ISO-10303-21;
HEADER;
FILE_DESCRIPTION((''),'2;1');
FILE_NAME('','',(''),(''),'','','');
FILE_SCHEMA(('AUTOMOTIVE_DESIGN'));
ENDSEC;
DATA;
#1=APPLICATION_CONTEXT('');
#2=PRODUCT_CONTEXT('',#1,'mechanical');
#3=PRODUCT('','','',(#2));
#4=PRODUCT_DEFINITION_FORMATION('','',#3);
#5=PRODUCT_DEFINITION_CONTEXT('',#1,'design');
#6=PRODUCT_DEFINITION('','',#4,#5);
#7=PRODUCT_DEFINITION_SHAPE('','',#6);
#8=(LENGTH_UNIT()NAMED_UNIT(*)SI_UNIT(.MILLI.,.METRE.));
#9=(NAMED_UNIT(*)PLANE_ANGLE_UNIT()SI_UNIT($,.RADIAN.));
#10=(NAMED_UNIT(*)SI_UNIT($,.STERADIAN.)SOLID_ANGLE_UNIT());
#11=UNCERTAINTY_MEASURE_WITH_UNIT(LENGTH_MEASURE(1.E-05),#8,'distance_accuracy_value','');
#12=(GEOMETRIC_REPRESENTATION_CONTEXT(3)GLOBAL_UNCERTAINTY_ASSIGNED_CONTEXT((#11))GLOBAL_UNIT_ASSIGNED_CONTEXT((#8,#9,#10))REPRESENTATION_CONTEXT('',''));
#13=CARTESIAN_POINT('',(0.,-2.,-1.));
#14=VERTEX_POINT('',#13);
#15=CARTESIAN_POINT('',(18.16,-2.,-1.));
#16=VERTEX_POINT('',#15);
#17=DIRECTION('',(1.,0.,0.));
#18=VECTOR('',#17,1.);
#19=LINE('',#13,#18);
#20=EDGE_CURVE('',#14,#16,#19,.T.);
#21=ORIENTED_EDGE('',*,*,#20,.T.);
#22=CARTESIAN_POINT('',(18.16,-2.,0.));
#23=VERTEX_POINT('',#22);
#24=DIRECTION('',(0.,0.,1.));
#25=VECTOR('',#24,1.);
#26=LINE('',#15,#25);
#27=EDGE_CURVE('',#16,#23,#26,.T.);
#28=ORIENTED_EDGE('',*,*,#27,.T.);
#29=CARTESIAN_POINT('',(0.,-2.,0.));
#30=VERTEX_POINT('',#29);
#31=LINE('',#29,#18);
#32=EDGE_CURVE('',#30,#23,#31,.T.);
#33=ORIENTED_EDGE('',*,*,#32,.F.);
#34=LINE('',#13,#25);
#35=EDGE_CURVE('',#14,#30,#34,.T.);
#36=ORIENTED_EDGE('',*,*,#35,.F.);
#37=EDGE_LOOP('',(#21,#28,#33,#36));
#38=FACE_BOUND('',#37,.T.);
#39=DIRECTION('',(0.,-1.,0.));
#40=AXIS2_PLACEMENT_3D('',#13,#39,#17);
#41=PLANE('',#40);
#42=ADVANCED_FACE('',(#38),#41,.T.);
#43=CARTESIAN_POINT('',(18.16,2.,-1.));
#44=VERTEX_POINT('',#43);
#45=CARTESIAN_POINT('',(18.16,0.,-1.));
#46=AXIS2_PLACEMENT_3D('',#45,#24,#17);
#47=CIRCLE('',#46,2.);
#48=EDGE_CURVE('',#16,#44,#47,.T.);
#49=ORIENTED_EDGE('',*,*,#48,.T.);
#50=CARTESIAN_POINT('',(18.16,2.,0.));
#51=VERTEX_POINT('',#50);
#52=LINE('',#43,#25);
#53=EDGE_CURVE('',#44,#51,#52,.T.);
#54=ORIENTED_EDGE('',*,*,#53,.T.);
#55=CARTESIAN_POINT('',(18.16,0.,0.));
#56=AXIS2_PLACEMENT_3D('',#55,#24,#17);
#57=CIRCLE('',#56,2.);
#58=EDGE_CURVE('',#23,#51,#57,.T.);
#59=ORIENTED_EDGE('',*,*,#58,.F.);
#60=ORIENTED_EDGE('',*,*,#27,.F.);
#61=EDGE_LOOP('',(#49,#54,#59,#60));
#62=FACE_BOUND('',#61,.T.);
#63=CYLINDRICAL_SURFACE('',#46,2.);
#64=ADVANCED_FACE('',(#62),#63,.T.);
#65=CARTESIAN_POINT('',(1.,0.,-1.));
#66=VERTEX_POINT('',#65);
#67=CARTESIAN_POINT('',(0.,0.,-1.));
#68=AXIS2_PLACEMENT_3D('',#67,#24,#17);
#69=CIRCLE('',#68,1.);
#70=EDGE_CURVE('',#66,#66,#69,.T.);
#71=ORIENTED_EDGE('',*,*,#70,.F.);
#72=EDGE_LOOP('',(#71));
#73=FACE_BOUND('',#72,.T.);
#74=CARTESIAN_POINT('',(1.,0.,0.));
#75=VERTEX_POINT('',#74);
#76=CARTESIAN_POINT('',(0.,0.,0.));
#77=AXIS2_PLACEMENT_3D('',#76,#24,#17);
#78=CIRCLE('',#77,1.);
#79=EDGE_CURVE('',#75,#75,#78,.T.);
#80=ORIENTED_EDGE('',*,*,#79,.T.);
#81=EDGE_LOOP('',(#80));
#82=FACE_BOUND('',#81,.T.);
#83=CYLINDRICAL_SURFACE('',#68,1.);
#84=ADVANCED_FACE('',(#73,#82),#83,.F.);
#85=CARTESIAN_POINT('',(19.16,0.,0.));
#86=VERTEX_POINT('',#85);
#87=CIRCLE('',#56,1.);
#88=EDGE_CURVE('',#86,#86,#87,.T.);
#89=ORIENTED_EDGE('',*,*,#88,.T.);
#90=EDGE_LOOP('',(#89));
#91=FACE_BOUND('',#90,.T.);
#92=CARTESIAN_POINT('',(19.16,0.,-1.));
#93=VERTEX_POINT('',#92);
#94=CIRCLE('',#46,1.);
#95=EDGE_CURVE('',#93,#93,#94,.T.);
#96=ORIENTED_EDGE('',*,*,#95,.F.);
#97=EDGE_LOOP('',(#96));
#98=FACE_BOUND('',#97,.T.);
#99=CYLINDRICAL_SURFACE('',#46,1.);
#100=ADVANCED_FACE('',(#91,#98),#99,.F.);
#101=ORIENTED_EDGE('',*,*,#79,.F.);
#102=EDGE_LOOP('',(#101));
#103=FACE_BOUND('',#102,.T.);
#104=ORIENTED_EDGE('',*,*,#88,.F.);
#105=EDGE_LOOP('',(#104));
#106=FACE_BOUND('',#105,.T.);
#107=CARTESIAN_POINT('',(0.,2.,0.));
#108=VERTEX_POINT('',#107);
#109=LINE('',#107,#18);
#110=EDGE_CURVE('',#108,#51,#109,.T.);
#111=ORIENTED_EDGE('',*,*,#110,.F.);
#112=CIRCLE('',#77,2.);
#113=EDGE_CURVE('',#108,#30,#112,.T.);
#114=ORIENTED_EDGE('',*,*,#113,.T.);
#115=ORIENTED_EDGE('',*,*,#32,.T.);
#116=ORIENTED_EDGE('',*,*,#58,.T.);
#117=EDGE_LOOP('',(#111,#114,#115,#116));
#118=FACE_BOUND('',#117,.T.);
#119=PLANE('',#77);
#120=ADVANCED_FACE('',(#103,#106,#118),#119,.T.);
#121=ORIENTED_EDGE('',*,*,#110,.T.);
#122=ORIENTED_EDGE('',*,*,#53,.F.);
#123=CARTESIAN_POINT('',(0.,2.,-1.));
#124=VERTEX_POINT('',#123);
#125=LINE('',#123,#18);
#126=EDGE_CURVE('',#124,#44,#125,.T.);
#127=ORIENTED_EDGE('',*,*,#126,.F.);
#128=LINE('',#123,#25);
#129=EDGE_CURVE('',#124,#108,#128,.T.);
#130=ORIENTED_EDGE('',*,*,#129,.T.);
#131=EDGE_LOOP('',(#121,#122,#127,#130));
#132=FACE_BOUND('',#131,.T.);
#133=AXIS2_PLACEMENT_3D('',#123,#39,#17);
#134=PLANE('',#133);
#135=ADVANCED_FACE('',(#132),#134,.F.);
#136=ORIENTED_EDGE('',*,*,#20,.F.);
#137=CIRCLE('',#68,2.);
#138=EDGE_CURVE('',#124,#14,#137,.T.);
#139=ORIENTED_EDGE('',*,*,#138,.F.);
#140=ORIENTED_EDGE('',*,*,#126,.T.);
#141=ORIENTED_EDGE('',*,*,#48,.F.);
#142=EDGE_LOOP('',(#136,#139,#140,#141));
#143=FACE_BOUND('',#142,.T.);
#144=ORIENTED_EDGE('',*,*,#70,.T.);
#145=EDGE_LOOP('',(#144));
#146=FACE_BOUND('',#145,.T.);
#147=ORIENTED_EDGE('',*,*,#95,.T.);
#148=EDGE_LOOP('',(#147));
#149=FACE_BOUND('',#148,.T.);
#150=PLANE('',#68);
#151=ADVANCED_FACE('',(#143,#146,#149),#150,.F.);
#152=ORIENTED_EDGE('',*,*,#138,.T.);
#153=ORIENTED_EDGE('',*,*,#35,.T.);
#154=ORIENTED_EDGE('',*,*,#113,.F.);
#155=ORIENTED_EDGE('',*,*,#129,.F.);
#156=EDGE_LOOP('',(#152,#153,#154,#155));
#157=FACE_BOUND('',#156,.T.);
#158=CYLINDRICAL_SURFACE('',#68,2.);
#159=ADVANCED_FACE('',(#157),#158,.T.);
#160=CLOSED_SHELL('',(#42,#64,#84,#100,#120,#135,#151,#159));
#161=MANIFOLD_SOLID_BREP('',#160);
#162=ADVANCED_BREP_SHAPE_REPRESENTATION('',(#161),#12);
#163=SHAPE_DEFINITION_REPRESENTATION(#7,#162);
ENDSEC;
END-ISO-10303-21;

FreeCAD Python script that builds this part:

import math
import FreeCAD as App
import Part
import Sketcher
from FreeCAD import Vector

doc = App.newDocument("Part")
params = doc.addObject("Spreadsheet::Sheet", "Params")
for row, (alias, value) in enumerate([
    ("sketch1_diameter", "2 mm"),
    ("sketch1_radius", "2 mm"),
    ("sketch1_width", "18.16 mm"),
    ("pad1_length", "1 mm"),
], start=1):
    params.set(f"A{row}", alias)
    params.set(f"B{row}", "=" + value)
    params.setAlias(f"B{row}", alias)

body = doc.addObject("PartDesign::Body", "Body")

# Sketch on XY plane
sketch1 = body.newObject("Sketcher::SketchObject", "Sketch")
sketch1.AttachmentSupport = (doc.getObject("XY_Plane"), [""])
sketch1.MapMode = "FlatFace"
sketch1.addGeometry([
    Part.ArcOfCircle(Part.Circle(Vector(0, 0, 0), Vector(0, 0, 1), 2), math.radians(90), math.radians(270)),  # 0
    Part.LineSegment(Vector(0, -2, 0), Vector(18.2, -2, 0)),  # 1
    Part.ArcOfCircle(Part.Circle(Vector(18.2, 0, 0), Vector(0, 0, 1), 2), math.radians(-90), math.radians(90)),  # 2
    Part.LineSegment(Vector(18.2, 2, 0), Vector(0, 2, 0)),  # 3
    Part.Circle(Vector(0, 0, 0), Vector(0, 0, 1), 1),  # 4
    Part.Circle(Vector(18.2, 0, 0), Vector(0, 0, 1), 1),  # 5
], False)
sketch1.addConstraint([
    Sketcher.Constraint("Tangent", 0, 2, 1, 1),
    Sketcher.Constraint("Tangent", 1, 2, 2, 1),
    Sketcher.Constraint("Tangent", 2, 2, 3, 1),
    Sketcher.Constraint("Tangent", 3, 2, 0, 1),
    Sketcher.Constraint("Horizontal", 1),
    Sketcher.Constraint("Horizontal", 3),
    Sketcher.Constraint("Coincident", 0, 3, -1, 1),
    Sketcher.Constraint("Coincident", 4, 3, -1, 1),
    Sketcher.Constraint("Coincident", 5, 3, 2, 3),
    Sketcher.Constraint("Equal", 4, 5),
    Sketcher.Constraint("Diameter", 4, 2.0),
    Sketcher.Constraint("Radius", 0, 2.0),
    Sketcher.Constraint("DistanceX", 1, 1, 1, 2, 18.16),
])
sketch1.setExpression("Constraints[10]", "Params.sketch1_diameter")
sketch1.setExpression("Constraints[11]", "Params.sketch1_radius")
sketch1.setExpression("Constraints[12]", "Params.sketch1_width")
pad1 = body.newObject("PartDesign::Pad", "Pad")
pad1.Profile = sketch1
pad1.setExpression("Length", "Params.pad1_length")
pad1.Reversed = True

doc.recompute()
